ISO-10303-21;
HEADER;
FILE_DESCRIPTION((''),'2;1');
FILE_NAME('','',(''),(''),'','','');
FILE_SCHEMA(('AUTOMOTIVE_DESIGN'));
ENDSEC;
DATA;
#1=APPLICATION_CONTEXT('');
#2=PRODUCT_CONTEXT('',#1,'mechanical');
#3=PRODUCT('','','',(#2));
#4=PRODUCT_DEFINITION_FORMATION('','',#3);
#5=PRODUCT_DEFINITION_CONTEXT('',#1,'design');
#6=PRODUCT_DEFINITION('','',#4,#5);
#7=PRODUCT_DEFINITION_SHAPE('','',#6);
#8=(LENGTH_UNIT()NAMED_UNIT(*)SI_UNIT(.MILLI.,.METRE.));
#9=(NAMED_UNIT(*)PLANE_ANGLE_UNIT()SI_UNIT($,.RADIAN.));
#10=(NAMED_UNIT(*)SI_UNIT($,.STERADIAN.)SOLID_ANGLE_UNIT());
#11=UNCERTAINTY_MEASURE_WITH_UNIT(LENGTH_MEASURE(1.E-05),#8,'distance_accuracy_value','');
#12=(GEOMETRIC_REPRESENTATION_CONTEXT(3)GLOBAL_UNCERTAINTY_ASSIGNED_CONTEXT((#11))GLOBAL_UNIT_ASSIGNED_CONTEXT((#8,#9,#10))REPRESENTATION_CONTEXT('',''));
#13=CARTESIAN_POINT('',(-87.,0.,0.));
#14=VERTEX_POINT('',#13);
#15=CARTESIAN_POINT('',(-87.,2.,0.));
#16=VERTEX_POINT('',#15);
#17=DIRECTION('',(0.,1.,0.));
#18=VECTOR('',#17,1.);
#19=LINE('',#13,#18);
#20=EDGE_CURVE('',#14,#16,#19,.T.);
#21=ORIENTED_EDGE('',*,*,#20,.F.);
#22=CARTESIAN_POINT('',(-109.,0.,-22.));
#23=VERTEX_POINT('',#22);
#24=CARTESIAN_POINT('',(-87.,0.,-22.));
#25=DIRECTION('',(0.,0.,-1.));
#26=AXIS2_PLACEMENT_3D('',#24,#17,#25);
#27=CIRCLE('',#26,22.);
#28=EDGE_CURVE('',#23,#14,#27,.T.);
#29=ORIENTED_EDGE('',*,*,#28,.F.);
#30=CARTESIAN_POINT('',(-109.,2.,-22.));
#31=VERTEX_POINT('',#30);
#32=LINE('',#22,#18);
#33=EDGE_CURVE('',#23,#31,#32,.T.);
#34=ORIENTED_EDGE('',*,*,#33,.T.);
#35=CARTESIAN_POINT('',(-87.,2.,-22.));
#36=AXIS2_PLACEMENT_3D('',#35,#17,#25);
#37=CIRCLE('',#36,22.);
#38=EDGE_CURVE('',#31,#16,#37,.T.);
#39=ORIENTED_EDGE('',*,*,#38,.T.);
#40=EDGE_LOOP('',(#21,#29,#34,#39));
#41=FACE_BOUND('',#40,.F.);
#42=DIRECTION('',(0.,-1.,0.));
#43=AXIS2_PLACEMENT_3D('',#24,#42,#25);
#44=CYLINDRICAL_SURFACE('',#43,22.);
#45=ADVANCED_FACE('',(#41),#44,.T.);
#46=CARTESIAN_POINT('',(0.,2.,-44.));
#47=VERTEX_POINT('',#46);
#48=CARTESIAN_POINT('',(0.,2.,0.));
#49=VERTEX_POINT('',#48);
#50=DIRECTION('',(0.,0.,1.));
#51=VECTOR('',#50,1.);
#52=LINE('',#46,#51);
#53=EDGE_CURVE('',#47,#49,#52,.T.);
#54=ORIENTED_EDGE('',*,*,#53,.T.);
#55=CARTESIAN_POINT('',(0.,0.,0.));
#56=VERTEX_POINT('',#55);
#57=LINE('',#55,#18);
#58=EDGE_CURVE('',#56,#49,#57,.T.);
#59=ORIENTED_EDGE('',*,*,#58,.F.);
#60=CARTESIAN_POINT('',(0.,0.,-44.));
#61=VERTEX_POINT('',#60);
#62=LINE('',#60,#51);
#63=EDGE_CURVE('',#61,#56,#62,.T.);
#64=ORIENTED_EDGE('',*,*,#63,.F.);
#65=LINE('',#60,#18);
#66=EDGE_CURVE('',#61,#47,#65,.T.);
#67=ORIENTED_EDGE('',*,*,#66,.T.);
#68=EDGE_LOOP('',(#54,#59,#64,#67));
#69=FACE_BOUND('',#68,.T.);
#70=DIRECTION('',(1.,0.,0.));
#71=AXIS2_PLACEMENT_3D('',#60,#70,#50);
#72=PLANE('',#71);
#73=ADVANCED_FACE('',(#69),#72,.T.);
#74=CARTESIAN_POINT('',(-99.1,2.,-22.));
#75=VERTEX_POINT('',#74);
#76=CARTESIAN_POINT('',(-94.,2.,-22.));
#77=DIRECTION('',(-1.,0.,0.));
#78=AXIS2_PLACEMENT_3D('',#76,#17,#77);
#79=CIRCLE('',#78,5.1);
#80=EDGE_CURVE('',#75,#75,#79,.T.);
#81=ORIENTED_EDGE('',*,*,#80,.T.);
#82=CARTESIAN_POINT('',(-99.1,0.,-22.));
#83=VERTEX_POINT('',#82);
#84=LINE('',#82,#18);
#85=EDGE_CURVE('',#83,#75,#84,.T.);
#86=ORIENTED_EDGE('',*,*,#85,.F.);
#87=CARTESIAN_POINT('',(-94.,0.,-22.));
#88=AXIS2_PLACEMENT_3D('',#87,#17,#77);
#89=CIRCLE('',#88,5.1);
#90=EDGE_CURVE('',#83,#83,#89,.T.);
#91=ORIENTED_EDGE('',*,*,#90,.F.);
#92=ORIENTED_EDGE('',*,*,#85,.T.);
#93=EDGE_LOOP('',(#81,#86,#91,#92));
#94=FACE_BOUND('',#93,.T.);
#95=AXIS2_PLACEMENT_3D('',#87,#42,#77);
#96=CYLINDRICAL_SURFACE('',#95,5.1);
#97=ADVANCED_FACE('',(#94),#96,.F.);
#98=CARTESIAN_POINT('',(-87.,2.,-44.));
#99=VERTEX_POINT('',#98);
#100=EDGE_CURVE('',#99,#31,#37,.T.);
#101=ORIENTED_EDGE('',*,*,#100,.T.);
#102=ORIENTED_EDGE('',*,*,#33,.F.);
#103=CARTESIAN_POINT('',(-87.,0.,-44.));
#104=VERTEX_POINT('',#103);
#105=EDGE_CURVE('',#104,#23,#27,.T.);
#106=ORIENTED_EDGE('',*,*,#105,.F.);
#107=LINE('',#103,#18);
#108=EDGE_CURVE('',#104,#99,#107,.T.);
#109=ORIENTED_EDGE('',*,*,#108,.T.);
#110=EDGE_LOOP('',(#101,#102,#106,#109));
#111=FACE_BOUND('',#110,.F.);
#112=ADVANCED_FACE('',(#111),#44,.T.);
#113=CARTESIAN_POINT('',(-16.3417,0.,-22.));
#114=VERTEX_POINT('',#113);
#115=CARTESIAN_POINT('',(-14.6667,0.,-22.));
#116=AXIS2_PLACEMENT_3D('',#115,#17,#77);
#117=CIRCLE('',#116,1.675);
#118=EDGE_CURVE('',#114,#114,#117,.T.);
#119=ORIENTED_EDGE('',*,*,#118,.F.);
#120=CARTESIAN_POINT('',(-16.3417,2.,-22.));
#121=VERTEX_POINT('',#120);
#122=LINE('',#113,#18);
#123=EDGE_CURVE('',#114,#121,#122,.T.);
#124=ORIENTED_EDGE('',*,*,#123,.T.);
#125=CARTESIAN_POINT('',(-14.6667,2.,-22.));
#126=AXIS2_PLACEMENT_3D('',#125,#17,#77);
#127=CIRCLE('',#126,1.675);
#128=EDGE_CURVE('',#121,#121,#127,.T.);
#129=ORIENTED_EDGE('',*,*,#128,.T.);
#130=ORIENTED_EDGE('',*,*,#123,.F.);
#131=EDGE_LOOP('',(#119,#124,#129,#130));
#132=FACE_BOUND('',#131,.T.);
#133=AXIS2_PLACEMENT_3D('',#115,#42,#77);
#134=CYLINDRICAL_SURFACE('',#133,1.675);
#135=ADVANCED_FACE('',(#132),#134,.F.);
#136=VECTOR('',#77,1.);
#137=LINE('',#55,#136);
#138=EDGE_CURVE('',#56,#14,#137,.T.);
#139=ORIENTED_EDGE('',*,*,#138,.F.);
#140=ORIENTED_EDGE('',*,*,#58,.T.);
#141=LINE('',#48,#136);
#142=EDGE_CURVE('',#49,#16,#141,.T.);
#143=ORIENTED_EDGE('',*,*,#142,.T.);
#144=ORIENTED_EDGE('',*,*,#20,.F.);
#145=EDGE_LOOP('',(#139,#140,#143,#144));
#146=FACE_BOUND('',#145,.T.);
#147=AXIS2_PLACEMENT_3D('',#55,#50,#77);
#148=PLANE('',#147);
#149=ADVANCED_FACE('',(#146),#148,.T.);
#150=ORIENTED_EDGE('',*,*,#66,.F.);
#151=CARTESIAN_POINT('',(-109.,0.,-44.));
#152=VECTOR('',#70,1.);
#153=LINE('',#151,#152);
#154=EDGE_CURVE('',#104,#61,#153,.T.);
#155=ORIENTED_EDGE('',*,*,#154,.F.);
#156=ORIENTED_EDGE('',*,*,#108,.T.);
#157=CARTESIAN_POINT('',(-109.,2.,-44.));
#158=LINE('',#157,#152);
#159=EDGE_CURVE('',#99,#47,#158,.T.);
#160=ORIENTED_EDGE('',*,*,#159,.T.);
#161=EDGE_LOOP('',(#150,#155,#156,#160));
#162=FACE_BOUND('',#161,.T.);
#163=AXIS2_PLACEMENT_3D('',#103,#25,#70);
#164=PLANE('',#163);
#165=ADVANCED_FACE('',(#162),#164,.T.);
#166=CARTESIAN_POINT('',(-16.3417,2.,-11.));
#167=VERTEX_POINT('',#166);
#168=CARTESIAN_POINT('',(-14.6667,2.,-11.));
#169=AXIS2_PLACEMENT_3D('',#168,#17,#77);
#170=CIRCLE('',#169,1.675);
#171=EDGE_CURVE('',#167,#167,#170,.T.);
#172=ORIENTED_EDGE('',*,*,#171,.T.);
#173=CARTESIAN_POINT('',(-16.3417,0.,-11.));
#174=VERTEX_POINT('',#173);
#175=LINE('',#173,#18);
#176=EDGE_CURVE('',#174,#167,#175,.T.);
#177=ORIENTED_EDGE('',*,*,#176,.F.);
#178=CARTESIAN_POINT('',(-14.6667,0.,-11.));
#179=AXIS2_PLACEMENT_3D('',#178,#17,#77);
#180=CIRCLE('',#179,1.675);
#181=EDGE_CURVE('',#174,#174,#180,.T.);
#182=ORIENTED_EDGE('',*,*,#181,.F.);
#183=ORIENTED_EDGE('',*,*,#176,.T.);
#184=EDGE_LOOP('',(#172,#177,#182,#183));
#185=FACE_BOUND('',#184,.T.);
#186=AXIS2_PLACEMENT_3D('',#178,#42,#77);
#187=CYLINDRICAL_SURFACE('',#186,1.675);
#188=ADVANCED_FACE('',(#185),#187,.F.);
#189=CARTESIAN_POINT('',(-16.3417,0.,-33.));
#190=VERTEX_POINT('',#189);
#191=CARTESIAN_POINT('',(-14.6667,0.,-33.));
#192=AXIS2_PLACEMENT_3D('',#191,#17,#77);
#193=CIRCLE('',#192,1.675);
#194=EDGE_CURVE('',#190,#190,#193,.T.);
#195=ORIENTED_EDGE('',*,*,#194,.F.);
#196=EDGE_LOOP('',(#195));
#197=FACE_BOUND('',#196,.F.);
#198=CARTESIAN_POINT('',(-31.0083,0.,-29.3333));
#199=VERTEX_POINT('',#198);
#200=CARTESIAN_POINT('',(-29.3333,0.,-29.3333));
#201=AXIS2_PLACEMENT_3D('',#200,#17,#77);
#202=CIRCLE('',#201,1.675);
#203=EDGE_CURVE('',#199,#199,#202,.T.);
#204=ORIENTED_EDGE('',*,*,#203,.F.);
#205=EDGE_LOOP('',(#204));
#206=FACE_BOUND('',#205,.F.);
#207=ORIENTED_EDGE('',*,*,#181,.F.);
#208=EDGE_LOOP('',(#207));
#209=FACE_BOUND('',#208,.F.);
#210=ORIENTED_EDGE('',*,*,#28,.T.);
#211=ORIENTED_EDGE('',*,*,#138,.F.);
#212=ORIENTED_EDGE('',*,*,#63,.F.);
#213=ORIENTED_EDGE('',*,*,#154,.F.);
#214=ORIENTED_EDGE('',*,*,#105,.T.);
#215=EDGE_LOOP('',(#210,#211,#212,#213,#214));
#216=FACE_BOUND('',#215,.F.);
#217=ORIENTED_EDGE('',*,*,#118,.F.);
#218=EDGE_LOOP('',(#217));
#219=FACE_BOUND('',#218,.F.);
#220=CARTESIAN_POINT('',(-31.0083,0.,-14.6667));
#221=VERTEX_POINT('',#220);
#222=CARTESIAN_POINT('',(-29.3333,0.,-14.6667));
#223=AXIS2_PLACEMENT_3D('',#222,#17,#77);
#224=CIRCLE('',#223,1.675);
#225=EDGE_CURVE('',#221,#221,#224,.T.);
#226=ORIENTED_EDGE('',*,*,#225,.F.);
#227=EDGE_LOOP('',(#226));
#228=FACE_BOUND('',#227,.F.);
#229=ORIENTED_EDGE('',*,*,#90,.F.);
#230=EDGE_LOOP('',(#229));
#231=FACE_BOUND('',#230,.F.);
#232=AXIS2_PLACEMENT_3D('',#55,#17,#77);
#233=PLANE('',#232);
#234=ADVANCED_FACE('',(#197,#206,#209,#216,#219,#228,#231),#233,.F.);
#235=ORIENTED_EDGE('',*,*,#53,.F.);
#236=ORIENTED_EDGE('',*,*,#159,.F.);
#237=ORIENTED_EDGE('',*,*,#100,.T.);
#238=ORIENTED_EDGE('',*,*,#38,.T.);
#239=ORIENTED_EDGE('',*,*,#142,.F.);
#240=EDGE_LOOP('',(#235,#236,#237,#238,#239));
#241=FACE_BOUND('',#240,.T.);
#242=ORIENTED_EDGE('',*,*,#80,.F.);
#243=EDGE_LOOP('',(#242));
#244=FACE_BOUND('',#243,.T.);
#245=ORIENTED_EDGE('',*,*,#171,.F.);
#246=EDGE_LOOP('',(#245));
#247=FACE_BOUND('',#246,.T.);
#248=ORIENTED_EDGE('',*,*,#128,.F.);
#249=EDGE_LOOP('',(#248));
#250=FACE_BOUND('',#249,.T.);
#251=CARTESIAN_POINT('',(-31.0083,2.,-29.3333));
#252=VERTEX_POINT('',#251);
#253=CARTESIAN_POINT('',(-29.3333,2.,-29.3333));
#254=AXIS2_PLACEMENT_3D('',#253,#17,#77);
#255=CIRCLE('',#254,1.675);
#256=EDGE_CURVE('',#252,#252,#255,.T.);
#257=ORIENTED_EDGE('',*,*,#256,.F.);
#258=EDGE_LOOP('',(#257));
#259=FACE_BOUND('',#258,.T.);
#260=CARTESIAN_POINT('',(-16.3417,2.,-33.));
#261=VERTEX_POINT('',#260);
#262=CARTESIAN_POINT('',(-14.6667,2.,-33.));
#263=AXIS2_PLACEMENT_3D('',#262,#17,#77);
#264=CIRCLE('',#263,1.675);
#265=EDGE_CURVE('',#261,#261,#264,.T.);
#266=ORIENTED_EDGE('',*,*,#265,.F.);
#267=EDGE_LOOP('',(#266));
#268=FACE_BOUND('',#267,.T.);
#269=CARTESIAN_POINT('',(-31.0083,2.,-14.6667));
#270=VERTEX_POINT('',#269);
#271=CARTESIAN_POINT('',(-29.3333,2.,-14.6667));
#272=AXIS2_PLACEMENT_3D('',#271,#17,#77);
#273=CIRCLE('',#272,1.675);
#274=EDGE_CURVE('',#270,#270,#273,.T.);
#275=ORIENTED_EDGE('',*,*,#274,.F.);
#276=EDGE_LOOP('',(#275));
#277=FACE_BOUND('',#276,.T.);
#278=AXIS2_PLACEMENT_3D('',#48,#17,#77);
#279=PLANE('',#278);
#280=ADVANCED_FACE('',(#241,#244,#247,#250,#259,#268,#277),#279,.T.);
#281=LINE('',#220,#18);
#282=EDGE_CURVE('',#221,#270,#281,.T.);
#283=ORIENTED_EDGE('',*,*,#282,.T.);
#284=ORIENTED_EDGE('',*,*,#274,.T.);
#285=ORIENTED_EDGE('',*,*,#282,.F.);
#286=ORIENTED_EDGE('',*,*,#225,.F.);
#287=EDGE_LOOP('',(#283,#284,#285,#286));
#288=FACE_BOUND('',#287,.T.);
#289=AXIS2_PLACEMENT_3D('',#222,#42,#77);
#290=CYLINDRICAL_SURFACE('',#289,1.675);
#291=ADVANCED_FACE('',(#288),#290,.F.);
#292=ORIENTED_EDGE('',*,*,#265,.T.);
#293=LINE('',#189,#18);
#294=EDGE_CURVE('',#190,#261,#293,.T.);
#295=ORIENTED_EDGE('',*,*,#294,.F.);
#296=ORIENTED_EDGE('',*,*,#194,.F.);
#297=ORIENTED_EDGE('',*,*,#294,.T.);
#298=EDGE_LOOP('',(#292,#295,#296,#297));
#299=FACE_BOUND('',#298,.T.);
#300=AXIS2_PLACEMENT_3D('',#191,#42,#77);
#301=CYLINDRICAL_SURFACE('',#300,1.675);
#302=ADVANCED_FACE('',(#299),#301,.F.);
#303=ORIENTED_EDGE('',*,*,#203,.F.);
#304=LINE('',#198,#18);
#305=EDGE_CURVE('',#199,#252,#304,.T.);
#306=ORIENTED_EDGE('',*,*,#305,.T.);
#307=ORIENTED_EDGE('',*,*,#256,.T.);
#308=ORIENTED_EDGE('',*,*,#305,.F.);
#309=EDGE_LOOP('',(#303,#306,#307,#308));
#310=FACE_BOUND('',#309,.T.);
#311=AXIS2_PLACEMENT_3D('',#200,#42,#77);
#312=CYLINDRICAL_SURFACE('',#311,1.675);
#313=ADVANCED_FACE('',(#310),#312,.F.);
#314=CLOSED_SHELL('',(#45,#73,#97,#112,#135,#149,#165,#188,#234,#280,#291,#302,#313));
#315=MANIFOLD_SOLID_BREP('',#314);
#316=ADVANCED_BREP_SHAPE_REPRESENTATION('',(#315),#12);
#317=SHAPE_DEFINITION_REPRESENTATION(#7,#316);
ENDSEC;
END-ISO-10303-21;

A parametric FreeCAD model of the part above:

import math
import FreeCAD as App
import Part
import Sketcher

V = App.Vector

doc = App.newDocument("Part")
body = doc.addObject("PartDesign::Body", "Body")

sketch1 = doc.addObject("Sketcher::SketchObject", "Sketch")
body.addObject(sketch1)
sketch1.AttachmentSupport = (doc.XZ_Plane, [""])
sketch1.MapMode = "FlatFace"
sketch1.addGeometry([
    Part.LineSegment(V(-87, 0, 0), V(0, 0, 0)),
    Part.LineSegment(V(0, 0, 0), V(0, -44, 0)),
    Part.LineSegment(V(0, -44, 0), V(-87, -44, 0)),
    Part.ArcOfCircle(Part.Circle(V(-87, -22, 0), V(0, 0, 1), 22), math.radians(90), math.radians(270)),
    Part.Circle(V(-14.7, -33, 0), V(0, 0, 1), 1.7),
    Part.Circle(V(-29.3, -29.3, 0), V(0, 0, 1), 1.7),
    Part.Circle(V(-14.7, -22, 0), V(0, 0, 1), 1.7),
    Part.Circle(V(-29.3, -14.7, 0), V(0, 0, 1), 1.7),
    Part.Circle(V(-14.7, -11, 0), V(0, 0, 1), 1.7),
    Part.Circle(V(-94, -22, 0), V(0, 0, 1), 5.1),
], False)
sketch1.addConstraint([
    Sketcher.Constraint("Coincident", 0, 2, 1, 1),
    Sketcher.Constraint("Coincident", 1, 2, 2, 1),
    Sketcher.Constraint("Tangent", 2, 2, 3, 2),
    Sketcher.Constraint("Tangent", 3, 1, 0, 1),
    Sketcher.Constraint("Horizontal", 0),
    Sketcher.Constraint("Vertical", 1),
    Sketcher.Constraint("Horizontal", 2),
    Sketcher.Constraint("Coincident", 0, 2, -1, 1),
    Sketcher.Constraint("Equal", 4, 5),
    Sketcher.Constraint("Equal", 5, 6),
    Sketcher.Constraint("Equal", 6, 7),
    Sketcher.Constraint("Equal", 7, 8),
    Sketcher.Constraint("Horizontal", 3, 3, 6, 3),
    Sketcher.Constraint("Horizontal", 6, 3, 9, 3),
    Sketcher.Constraint("Vertical", 4, 3, 6, 3),
    Sketcher.Constraint("Vertical", 5, 3, 7, 3),
    Sketcher.Constraint("Vertical", 6, 3, 8, 3),
    Sketcher.Constraint("Radius", 3, 22.0),
    Sketcher.Constraint("Diameter", 9, 10.2),
    Sketcher.Constraint("Diameter", 4, 3.35),
    Sketcher.Constraint("DistanceY", 8, 3, -1, 1, 11.0),
    Sketcher.Constraint("DistanceY", 4, 3, 3, 3, 11.0),
    Sketcher.Constraint("DistanceX", 0, 1, 0, 2, 87.0),
    Sketcher.Constraint("DistanceX", 9, 3, -1, 1, 94.0),
    Sketcher.Constraint("DistanceX", 4, 3, -1, 1, 14.6667),
    Sketcher.Constraint("DistanceY", 7, 3, -1, 1, 14.6667),
    Sketcher.Constraint("DistanceX", 5, 3, 4, 3, 14.6666),
    Sketcher.Constraint("DistanceY", 5, 3, 7, 3, 14.6666),
])
pad1 = doc.addObject("PartDesign::Pad", "Pad")
body.addObject(pad1)
pad1.Profile = sketch1
pad1.Length = 2
pad1.Reversed = True

doc.recompute()
